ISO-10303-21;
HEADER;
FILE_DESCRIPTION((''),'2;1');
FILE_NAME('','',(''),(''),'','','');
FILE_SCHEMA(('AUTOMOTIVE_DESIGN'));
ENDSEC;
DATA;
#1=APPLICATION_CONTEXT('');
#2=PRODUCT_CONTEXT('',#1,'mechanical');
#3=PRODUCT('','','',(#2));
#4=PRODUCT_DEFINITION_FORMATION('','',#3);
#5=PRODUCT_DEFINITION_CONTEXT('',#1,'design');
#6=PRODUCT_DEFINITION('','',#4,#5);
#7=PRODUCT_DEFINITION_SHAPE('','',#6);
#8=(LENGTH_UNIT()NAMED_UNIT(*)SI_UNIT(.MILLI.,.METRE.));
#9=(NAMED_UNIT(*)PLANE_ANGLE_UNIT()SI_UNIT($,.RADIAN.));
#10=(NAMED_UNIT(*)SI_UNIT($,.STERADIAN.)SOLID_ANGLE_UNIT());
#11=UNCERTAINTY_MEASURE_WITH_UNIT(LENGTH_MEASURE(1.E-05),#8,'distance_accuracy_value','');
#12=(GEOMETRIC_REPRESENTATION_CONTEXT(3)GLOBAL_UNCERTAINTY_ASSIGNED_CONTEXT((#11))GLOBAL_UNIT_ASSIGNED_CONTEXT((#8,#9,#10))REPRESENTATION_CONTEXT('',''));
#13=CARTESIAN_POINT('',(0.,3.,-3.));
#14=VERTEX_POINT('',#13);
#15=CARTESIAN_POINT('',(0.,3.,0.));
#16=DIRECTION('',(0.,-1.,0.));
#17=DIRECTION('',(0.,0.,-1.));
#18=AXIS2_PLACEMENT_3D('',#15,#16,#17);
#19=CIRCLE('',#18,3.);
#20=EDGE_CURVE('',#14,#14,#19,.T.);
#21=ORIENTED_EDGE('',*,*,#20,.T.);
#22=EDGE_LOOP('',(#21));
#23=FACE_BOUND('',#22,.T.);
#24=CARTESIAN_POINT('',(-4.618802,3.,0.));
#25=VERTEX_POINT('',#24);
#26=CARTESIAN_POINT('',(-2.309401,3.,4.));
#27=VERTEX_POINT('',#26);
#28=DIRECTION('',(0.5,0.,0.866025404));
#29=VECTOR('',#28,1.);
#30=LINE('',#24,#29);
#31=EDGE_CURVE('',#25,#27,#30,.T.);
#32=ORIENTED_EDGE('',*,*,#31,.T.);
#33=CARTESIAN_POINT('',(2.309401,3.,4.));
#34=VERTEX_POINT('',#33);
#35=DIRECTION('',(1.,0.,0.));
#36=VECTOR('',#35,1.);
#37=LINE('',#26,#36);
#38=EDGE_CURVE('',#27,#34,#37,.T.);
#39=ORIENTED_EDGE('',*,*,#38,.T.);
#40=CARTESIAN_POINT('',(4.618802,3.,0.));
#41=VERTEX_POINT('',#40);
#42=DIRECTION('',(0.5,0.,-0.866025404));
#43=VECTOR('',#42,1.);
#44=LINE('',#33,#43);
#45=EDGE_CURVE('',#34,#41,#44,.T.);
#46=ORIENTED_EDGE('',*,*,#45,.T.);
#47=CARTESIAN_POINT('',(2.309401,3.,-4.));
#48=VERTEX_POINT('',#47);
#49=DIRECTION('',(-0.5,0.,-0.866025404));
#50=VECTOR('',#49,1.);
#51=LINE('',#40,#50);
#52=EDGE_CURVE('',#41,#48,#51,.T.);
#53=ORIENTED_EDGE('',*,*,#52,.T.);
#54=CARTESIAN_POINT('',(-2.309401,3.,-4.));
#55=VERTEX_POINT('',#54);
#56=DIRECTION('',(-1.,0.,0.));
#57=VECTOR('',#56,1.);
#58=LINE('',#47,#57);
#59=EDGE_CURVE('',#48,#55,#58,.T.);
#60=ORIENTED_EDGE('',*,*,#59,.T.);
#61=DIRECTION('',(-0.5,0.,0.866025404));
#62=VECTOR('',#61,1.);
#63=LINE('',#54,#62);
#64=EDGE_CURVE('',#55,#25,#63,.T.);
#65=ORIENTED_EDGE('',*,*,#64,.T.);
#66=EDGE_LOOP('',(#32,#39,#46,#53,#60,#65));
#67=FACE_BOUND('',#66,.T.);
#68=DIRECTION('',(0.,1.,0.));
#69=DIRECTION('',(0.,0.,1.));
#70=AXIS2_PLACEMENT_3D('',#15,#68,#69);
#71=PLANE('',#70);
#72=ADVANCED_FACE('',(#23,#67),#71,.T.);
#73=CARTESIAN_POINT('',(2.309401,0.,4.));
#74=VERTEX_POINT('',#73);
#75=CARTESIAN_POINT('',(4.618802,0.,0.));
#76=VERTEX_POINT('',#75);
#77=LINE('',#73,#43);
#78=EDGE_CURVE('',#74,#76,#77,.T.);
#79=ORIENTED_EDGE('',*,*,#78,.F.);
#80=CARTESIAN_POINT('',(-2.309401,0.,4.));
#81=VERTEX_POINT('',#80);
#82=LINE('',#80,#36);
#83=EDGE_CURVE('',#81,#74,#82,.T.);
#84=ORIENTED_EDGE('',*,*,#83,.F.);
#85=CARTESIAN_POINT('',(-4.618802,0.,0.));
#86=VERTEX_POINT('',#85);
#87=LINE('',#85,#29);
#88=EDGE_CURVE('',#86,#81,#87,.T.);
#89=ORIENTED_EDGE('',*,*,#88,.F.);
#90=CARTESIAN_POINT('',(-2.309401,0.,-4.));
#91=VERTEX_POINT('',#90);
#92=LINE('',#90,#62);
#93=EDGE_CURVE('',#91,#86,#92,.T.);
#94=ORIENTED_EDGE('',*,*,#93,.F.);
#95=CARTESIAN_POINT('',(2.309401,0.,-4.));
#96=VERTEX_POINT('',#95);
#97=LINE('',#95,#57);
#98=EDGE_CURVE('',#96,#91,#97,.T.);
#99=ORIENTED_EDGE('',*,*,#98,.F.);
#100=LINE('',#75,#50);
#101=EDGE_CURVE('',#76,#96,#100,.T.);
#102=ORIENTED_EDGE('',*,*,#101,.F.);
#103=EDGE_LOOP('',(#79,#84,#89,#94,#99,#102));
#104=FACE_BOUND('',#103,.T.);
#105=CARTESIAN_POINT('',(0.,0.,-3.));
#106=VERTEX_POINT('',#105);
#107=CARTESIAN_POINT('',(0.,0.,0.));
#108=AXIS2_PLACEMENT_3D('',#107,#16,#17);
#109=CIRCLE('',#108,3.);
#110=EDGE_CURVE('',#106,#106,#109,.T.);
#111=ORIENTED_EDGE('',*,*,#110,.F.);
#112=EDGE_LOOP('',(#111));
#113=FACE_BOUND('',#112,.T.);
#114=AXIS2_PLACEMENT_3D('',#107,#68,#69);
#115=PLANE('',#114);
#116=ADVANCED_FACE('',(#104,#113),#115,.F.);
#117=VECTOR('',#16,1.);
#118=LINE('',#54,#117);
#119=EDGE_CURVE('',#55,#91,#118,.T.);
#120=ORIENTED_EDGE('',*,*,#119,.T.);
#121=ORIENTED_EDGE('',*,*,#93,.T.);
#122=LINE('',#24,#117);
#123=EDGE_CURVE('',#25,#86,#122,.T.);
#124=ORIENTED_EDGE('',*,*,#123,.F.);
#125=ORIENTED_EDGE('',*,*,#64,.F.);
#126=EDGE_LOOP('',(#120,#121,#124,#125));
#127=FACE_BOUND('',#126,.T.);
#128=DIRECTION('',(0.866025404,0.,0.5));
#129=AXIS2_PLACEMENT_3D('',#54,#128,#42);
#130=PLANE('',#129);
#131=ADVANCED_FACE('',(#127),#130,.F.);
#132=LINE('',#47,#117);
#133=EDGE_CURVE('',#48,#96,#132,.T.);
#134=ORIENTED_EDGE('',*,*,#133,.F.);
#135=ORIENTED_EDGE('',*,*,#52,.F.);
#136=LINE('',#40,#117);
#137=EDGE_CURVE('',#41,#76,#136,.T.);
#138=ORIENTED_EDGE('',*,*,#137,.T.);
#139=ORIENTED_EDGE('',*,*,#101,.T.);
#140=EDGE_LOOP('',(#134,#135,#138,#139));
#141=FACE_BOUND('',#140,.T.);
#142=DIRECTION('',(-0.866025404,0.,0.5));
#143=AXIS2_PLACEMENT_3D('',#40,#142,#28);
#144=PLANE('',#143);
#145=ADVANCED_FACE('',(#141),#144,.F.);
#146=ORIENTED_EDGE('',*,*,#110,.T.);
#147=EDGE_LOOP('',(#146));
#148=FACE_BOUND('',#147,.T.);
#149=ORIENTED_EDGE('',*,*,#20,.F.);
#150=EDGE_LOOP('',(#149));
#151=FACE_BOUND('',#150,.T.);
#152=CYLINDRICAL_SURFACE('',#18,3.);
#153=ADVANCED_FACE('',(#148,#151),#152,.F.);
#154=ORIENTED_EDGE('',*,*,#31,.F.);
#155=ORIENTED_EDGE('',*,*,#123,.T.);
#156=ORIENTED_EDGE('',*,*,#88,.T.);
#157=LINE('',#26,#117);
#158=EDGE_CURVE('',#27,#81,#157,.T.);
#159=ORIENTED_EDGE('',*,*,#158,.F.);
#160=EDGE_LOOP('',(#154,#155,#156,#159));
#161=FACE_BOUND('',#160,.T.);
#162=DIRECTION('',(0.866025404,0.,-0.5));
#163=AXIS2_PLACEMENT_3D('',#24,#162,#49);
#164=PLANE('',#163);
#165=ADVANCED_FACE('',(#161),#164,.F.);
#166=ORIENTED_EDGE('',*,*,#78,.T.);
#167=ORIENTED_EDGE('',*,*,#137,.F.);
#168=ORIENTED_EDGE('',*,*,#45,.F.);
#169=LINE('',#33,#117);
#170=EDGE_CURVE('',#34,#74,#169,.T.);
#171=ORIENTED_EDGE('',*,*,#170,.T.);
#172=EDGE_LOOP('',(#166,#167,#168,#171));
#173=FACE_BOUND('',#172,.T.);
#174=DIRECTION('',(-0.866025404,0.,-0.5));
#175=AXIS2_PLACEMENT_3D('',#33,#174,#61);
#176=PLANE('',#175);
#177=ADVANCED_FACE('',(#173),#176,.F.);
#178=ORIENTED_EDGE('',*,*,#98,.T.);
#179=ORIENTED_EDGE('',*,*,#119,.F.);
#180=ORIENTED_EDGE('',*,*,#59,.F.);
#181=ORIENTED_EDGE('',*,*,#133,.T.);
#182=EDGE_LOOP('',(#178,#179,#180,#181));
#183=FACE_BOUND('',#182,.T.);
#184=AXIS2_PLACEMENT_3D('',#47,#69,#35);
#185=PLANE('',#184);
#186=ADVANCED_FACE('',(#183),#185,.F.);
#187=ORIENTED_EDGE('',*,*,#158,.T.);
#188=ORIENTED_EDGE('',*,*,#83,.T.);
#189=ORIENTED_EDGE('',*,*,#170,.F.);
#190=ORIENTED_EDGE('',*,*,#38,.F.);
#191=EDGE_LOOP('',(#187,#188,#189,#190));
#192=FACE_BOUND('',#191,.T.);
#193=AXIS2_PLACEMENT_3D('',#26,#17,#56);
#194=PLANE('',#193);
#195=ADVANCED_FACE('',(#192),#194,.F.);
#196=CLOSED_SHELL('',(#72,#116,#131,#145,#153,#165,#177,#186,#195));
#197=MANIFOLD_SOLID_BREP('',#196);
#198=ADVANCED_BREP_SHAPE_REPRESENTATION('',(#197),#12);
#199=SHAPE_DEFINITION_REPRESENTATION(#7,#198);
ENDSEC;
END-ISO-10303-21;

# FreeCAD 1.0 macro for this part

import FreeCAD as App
import Part
import Sketcher
from FreeCAD import Vector
Q = App.Units.Quantity


def add_polygon(sketch, points):
    """Adds a closed chain of lines whose ends are joined by coincident constraints."""
    first, n = sketch.GeometryCount, len(points)
    for a, b in zip(points, points[1:] + points[:1]):
        sketch.addGeometry(Part.LineSegment(App.Vector(*a, 0), App.Vector(*b, 0)), False)
    for i in range(n):
        sketch.addConstraint(Sketcher.Constraint("Coincident", first + i, 2, first + (i + 1) % n, 1))

doc = App.newDocument("Part")
params = doc.addObject("Spreadsheet::Sheet", "Params")
for row, (alias, value) in enumerate([
    ("pad1_length", "3 mm"),
    ("sketch2_diameter", "6 mm"),
    ("pocket1_length", "3 mm"),
], start=1):
    params.set(f"A{row}", alias)
    params.set(f"B{row}", "=" + value)
    params.setAlias(f"B{row}", alias)

body = doc.addObject("PartDesign::Body", "Body")

# Sketch on XZ plane
sketch1 = body.newObject("Sketcher::SketchObject", "Sketch")
sketch1.AttachmentSupport = (doc.getObject("XZ_Plane"), [""])
sketch1.MapMode = "FlatFace"
add_polygon(sketch1, [(4.618802, 0), (2.309401, -4), (-2.309401, -4), (-4.618802, 0), (-2.309401, 4), (2.309401, 4)])  # lines 0-5
sketch1.addConstraint([
    Sketcher.Constraint("Horizontal", 1),
    Sketcher.Constraint("Horizontal", 4),
    Sketcher.Constraint("Symmetric", 0, 2, 3, 2, -1, 1),
    Sketcher.Constraint("Symmetric", 2, 2, 5, 2, -1, 1),
    Sketcher.Constraint("PointOnObject", 2, 2, -1),
    Sketcher.Constraint("Parallel", 2, 5),
    Sketcher.Constraint("Vertical", 1, 2, 3, 2),
    Sketcher.Constraint("Angle", 0, Q("-120 deg")),
    Sketcher.Constraint("DistanceY", 0, 2, -1, 1, 4.0),
    Sketcher.Constraint("DistanceX", -1, 1, 0, 2, 2.309401),
])
pad1 = body.newObject("PartDesign::Pad", "Pad")
pad1.Profile = sketch1
pad1.setExpression("Length", "Params.pad1_length")
pad1.Reversed = True

# Sketch on XZ plane
sketch2 = body.newObject("Sketcher::SketchObject", "Sketch001")
sketch2.AttachmentSupport = (doc.getObject("XZ_Plane"), [""])
sketch2.MapMode = "FlatFace"
sketch2.addGeometry(Part.Circle(Vector(0, 0, 0), Vector(0, 0, 1), 3), False)
sketch2.addConstraint([
    Sketcher.Constraint("Coincident", 0, 3, -1, 1),
    Sketcher.Constraint("Diameter", 0, 6.0),
])
sketch2.setExpression("Constraints[1]", "Params.sketch2_diameter")
pocket1 = body.newObject("PartDesign::Pocket", "Pocket")
pocket1.Profile = sketch2
pocket1.setExpression("Length", "Params.pocket1_length")

doc.recompute()
